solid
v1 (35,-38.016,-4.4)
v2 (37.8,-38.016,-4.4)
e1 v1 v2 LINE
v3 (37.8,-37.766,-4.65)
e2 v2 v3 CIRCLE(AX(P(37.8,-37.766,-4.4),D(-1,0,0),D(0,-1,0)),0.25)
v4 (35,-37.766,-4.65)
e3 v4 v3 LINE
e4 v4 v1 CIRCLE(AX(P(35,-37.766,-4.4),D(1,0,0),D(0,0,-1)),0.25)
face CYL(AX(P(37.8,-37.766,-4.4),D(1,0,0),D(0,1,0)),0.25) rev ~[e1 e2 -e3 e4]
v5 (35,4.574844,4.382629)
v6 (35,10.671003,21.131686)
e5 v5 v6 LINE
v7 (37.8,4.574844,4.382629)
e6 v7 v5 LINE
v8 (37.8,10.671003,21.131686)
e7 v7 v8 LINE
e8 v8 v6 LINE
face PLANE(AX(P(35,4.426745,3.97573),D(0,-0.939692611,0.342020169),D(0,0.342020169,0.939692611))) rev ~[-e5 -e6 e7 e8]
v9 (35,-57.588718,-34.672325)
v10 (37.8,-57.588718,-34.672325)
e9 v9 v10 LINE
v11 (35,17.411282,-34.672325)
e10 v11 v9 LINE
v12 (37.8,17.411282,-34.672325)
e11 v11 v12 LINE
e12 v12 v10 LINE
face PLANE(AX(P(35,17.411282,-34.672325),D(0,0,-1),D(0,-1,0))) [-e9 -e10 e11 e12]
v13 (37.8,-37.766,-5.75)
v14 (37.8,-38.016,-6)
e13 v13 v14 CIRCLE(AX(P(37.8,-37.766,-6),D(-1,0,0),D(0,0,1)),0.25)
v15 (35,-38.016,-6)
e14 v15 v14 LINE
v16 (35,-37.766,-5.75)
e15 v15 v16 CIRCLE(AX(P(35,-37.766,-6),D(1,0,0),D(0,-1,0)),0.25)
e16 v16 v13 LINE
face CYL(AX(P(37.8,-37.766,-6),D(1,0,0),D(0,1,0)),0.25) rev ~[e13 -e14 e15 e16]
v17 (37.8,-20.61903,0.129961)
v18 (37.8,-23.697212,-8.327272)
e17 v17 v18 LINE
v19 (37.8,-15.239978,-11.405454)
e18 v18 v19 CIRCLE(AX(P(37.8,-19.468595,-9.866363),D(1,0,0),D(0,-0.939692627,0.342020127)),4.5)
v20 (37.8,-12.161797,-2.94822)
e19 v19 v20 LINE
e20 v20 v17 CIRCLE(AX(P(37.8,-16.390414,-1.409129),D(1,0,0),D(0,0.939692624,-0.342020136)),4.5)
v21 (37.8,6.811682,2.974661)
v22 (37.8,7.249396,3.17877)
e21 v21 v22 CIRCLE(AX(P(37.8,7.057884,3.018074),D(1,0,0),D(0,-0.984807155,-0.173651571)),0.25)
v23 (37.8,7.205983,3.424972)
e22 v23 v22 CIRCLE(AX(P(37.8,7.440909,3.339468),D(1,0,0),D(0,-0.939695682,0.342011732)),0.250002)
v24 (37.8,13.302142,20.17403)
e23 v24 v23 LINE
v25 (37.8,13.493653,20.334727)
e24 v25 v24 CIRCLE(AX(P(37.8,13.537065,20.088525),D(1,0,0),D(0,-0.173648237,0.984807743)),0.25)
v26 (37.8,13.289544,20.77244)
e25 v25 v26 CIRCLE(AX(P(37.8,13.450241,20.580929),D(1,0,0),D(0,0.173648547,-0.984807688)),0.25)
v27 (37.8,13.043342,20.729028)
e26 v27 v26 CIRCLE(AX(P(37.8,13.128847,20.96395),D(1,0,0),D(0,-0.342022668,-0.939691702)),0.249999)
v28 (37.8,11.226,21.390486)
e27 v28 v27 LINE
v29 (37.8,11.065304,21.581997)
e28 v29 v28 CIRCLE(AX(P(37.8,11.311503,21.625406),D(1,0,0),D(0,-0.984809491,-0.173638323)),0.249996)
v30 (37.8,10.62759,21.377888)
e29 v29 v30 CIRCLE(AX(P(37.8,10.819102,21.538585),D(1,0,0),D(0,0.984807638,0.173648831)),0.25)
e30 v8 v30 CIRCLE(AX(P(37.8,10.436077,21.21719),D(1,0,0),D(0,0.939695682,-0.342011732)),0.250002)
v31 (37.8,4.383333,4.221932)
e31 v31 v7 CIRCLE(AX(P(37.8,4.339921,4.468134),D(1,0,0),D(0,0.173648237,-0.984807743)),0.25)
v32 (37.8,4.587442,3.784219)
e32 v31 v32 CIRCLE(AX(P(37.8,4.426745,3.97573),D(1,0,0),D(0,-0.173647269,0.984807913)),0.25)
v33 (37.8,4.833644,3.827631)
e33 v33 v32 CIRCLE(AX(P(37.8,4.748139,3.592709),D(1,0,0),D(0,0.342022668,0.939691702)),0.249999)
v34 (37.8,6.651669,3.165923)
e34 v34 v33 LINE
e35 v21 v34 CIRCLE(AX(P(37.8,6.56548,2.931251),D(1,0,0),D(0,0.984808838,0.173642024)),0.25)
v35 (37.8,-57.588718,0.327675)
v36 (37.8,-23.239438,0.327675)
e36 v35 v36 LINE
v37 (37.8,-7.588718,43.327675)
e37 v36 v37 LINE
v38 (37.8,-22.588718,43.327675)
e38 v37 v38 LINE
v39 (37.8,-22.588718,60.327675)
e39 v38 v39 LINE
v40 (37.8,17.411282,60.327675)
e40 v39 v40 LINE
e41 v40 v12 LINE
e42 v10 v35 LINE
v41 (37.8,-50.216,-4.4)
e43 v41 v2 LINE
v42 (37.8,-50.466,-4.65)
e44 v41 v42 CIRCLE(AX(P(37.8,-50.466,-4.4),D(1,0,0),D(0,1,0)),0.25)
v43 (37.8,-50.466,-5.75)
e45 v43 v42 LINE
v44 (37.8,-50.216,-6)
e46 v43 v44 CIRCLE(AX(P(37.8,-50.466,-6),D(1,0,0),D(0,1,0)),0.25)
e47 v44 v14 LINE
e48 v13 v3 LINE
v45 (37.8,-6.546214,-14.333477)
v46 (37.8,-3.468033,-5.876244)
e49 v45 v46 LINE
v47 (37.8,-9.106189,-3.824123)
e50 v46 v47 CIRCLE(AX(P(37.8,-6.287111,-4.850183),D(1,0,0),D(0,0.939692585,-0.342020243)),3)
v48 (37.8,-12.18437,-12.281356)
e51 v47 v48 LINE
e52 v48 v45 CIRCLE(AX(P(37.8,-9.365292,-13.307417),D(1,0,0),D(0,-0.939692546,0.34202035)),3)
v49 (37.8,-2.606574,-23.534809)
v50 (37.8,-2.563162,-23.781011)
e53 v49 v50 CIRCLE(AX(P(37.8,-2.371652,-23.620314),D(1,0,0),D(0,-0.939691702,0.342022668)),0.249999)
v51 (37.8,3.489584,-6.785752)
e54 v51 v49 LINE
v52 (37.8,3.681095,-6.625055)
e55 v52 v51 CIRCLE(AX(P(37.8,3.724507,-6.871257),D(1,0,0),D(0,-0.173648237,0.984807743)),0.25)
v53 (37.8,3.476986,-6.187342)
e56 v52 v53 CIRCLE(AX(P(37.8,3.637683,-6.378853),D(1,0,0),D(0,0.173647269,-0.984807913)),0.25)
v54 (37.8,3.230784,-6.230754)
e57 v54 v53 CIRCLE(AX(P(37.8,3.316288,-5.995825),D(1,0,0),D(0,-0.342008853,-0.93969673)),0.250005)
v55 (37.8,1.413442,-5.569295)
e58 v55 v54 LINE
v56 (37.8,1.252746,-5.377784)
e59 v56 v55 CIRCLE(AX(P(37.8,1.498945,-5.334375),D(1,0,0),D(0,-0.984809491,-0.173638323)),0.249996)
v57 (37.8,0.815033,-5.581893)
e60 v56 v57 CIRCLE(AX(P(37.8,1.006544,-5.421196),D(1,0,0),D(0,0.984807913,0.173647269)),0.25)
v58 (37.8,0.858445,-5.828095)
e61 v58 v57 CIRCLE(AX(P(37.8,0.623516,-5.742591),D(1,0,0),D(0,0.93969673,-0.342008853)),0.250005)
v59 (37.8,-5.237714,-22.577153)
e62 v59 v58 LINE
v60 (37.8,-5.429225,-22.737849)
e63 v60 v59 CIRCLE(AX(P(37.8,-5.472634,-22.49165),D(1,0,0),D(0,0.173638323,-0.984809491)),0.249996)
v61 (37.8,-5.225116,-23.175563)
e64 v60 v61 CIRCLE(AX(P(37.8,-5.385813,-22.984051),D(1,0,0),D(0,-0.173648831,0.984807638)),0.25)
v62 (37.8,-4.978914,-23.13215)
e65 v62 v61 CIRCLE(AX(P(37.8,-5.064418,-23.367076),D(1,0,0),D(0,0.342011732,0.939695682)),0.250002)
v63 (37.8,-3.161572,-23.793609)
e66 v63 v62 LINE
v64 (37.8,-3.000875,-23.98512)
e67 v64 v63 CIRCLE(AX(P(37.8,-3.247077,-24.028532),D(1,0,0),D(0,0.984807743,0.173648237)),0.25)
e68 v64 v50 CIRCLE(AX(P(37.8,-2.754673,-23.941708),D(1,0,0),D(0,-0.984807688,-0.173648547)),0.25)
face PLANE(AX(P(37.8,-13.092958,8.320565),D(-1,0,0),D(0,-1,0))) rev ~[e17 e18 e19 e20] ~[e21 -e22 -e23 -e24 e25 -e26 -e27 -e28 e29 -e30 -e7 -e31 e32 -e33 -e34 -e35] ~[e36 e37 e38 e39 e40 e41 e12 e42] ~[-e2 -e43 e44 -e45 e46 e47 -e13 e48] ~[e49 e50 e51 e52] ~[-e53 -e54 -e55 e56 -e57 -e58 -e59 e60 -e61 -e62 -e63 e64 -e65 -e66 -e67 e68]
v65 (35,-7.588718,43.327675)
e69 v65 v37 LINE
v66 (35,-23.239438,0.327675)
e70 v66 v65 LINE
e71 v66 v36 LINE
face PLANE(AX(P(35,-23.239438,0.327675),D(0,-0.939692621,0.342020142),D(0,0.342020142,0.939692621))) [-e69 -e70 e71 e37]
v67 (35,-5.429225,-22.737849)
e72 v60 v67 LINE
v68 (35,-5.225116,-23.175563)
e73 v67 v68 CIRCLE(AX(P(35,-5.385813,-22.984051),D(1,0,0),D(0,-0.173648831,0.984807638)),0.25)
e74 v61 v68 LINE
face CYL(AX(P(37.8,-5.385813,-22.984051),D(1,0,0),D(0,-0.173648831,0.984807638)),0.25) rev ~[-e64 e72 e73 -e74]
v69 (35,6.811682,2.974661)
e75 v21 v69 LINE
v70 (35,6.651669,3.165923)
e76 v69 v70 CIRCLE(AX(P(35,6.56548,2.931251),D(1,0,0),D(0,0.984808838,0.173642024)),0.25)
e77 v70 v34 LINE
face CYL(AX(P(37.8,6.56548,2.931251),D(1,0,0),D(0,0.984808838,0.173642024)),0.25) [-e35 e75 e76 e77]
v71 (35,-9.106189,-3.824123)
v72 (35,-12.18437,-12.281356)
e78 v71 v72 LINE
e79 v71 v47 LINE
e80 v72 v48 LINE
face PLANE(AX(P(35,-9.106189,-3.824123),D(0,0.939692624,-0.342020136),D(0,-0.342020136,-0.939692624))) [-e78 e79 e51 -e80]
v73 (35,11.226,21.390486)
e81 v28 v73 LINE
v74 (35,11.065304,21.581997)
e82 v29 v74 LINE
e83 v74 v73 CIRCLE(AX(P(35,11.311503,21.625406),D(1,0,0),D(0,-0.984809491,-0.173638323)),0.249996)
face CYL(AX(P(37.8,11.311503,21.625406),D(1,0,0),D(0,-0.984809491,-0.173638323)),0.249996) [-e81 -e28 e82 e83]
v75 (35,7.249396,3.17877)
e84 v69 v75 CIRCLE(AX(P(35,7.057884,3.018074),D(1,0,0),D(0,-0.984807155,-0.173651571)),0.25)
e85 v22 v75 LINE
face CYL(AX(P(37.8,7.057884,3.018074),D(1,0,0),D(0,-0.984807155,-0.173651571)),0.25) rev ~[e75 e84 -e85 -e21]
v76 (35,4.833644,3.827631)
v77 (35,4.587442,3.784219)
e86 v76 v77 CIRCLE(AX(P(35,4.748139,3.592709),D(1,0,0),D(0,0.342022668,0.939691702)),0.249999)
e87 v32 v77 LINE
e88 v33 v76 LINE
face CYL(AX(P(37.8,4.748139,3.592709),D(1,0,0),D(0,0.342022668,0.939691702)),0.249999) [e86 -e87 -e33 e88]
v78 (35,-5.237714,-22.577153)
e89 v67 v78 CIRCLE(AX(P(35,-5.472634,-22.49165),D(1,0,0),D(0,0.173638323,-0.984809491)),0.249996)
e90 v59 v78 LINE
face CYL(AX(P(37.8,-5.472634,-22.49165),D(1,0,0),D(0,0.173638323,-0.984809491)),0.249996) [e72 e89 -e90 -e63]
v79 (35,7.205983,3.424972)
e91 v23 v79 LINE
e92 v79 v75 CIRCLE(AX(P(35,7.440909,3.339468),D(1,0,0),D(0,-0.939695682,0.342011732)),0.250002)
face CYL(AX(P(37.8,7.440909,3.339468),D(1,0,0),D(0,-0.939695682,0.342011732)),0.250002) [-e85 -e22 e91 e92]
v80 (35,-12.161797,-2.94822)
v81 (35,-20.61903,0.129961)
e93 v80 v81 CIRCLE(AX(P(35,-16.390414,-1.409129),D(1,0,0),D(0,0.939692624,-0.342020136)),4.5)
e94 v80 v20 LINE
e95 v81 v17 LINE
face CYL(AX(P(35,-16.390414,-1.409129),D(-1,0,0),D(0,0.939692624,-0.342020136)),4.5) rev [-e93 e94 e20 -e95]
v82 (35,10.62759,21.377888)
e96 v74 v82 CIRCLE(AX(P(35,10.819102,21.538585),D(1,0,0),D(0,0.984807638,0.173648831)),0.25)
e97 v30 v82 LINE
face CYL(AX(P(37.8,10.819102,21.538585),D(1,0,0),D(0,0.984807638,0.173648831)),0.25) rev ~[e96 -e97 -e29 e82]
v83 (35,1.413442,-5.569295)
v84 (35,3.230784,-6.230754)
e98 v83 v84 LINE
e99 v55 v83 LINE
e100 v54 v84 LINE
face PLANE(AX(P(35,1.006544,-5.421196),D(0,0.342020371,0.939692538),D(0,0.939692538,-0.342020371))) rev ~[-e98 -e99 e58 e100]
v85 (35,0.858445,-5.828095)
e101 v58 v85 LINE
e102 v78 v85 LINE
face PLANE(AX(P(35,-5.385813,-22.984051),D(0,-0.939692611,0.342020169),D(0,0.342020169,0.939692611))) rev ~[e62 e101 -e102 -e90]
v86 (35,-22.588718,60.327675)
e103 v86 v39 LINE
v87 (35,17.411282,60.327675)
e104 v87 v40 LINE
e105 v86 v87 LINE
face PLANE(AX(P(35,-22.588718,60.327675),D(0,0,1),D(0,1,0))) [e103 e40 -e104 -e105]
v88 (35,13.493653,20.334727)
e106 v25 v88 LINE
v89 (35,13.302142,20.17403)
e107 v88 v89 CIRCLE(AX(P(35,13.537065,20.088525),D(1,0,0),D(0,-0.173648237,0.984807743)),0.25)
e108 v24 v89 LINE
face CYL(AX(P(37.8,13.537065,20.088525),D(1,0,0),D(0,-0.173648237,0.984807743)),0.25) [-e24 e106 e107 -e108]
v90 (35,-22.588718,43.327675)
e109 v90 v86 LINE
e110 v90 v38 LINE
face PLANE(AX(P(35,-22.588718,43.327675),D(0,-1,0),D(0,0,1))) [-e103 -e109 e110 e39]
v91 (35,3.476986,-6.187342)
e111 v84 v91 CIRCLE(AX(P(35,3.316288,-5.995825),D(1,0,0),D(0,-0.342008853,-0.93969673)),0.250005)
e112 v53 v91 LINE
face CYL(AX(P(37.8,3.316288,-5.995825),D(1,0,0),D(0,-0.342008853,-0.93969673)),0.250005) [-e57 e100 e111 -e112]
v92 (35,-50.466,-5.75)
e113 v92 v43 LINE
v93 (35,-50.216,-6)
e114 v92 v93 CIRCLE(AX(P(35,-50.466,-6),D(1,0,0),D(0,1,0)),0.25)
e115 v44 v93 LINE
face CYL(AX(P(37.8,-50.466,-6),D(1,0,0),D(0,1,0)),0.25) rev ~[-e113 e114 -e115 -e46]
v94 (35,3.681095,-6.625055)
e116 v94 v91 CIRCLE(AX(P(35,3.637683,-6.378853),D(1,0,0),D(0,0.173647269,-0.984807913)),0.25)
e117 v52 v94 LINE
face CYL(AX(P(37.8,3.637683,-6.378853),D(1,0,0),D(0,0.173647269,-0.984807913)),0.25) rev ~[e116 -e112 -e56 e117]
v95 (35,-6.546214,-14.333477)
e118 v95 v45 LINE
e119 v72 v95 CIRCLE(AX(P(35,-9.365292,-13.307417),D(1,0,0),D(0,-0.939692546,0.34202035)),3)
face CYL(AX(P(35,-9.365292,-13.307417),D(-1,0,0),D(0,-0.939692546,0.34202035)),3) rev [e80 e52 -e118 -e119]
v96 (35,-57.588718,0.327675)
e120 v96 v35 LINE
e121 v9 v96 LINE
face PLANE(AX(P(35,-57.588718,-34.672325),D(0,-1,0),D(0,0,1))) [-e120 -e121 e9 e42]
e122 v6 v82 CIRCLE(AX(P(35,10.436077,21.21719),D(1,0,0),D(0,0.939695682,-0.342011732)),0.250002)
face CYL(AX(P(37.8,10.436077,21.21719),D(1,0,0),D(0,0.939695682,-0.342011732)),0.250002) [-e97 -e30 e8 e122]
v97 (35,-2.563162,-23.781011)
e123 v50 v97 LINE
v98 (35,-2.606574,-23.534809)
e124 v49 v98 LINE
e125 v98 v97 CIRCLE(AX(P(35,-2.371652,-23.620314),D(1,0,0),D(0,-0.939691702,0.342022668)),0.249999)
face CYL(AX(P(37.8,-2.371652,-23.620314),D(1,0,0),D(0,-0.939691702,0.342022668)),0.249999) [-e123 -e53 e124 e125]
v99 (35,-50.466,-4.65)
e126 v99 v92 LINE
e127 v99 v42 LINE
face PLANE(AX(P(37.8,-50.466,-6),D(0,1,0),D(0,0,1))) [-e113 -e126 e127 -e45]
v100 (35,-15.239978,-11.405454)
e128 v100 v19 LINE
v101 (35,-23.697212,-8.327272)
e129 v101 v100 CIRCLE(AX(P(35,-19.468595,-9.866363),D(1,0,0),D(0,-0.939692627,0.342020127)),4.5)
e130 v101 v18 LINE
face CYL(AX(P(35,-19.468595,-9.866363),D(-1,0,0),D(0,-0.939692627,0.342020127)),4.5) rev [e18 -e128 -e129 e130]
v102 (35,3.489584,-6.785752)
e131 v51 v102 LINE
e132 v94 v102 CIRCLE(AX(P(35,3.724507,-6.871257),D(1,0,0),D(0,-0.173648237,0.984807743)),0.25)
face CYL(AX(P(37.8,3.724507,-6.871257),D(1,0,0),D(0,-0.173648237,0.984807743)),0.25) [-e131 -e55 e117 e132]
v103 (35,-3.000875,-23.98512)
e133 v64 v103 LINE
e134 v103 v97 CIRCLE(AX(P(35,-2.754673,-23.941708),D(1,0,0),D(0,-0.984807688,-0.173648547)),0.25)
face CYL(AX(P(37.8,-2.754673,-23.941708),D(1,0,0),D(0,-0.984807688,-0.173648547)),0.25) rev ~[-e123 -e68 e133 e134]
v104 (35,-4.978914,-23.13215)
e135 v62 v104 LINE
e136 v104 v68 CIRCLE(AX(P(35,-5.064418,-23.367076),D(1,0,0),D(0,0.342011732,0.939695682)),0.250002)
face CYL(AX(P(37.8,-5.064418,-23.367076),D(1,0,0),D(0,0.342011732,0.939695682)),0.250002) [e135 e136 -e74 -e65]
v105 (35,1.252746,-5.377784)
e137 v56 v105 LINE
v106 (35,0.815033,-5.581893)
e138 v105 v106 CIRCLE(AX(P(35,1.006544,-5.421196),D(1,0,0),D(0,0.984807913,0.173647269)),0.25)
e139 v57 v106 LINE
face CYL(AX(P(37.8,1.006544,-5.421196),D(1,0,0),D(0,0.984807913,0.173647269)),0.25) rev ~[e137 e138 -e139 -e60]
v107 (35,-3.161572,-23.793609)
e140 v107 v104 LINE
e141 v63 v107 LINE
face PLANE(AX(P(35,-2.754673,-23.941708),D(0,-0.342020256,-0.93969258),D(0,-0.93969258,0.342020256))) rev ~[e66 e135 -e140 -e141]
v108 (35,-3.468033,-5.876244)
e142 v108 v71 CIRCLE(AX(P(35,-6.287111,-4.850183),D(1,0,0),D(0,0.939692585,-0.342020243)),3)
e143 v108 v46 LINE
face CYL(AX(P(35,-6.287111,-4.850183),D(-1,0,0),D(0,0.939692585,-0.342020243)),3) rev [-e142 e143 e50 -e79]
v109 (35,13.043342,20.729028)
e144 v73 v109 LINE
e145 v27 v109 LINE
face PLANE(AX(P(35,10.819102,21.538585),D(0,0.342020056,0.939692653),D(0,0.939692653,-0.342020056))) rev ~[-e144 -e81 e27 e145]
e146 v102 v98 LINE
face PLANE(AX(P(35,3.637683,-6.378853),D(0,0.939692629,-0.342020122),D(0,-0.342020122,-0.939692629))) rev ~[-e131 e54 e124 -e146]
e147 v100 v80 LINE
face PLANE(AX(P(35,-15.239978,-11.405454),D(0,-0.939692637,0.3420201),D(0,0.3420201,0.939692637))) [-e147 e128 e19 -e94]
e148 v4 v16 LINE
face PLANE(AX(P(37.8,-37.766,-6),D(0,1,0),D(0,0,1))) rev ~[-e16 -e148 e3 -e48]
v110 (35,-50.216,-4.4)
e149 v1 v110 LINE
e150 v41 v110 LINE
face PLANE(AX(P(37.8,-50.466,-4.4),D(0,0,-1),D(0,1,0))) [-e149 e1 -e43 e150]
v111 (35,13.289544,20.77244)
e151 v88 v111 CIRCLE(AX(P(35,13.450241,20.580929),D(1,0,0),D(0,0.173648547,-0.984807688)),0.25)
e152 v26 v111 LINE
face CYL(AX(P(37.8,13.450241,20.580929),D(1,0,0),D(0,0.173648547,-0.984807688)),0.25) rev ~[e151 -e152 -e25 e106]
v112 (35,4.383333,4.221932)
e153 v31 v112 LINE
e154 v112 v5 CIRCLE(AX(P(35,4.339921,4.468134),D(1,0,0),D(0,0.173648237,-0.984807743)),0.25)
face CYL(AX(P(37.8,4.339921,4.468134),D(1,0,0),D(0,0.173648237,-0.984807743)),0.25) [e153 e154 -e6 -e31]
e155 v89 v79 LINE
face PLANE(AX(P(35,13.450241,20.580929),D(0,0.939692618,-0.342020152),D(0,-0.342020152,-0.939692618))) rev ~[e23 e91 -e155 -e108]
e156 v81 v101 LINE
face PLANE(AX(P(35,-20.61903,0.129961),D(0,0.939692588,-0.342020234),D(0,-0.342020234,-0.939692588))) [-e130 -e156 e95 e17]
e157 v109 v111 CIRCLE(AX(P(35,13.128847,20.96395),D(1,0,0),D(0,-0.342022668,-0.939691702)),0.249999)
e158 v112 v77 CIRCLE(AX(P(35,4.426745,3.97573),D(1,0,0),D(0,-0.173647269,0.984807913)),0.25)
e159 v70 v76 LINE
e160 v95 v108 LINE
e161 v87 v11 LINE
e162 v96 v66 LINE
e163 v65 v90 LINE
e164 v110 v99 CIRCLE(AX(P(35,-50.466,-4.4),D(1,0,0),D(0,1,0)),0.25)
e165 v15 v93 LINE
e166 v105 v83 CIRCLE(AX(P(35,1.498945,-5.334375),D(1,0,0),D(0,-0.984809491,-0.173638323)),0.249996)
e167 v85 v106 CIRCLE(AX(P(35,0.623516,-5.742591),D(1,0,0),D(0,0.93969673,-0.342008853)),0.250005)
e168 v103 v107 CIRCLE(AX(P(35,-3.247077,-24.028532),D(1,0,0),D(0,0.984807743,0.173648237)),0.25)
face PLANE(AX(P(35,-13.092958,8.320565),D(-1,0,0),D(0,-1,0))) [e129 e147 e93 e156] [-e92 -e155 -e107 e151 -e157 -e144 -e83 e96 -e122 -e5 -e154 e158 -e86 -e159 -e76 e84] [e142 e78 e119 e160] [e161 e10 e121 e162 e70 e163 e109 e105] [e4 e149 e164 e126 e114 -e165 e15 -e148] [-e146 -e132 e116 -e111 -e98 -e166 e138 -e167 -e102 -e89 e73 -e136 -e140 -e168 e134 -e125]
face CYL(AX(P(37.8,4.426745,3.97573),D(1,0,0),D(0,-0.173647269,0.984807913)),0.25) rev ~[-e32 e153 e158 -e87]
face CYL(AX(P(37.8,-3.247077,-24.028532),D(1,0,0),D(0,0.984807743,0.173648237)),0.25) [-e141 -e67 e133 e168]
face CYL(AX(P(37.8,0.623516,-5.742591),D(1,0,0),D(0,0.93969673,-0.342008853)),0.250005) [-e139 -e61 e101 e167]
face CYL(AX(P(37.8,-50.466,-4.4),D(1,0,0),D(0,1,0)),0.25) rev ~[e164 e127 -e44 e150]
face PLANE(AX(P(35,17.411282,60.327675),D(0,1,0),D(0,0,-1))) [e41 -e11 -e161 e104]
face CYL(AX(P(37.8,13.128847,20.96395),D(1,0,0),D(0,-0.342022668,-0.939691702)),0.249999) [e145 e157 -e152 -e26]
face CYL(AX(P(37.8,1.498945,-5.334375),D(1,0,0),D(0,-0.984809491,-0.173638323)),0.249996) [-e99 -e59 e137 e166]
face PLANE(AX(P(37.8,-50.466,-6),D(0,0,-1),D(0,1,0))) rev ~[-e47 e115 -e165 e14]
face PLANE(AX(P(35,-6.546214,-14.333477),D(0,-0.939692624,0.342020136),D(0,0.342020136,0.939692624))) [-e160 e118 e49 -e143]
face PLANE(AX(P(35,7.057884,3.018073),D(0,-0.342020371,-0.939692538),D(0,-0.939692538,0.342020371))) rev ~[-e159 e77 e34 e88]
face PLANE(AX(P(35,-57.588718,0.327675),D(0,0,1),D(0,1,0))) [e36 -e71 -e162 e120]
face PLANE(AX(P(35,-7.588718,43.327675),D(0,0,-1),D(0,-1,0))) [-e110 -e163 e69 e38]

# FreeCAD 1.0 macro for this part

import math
import FreeCAD as App
import Part
import Sketcher
Q = App.Units.Quantity

doc = App.newDocument("Part")
body = doc.addObject("PartDesign::Body", "Body")

sketch1 = body.newObject("Sketcher::SketchObject", "Sketch")
sketch1.AttachmentSupport = (doc.getObject("YZ_Plane"), [""])
sketch1.MapMode = "FlatFace"
sketch1.AttachmentOffset = App.Placement(App.Vector(0, 0, 35), App.Rotation())
sketch1.addGeometry(Part.LineSegment(App.Vector(17.4, 60.3, 0), App.Vector(-22.6, 60.3, 0)), False)
sketch1.addGeometry(Part.LineSegment(App.Vector(-22.6, 60.3, 0), App.Vector(-22.6, 43.3, 0)), False)
sketch1.addGeometry(Part.LineSegment(App.Vector(-22.6, 43.3, 0), App.Vector(-7.6, 43.3, 0)), False)
sketch1.addGeometry(Part.LineSegment(App.Vector(-7.6, 43.3, 0), App.Vector(-23.2, 0.3, 0)), False)
sketch1.addGeometry(Part.LineSegment(App.Vector(-23.2, 0.3, 0), App.Vector(-57.6, 0.3, 0)), False)
sketch1.addGeometry(Part.LineSegment(App.Vector(-57.6, 0.3, 0), App.Vector(-57.6, -34.7, 0)), False)
sketch1.addGeometry(Part.LineSegment(App.Vector(-57.6, -34.7, 0), App.Vector(17.4, -34.7, 0)), False)
sketch1.addGeometry(Part.LineSegment(App.Vector(17.4, -34.7, 0), App.Vector(17.4, 60.3, 0)), False)
sketch1.addGeometry(Part.LineSegment(App.Vector(1, -5.4, 0), App.Vector(3.6, -6.4, 0)), False)
sketch1.addGeometry(Part.LineSegment(App.Vector(3.6, -6.4, 0), App.Vector(-2.8, -23.9, 0)), False)
sketch1.addGeometry(Part.LineSegment(App.Vector(-2.8, -23.9, 0), App.Vector(-5.4, -23, 0)), False)
sketch1.addGeometry(Part.LineSegment(App.Vector(-5.4, -23, 0), App.Vector(1, -5.4, 0)), False)
sketch1.addGeometry(Part.LineSegment(App.Vector(-3.5, -5.9, 0), App.Vector(-6.5, -14.3, 0)), False)
sketch1.addGeometry(Part.ArcOfCircle(Part.Circle(App.Vector(-9.4, -13.3, 0), App.Vector(0, 0, 1), 3), math.radians(160), math.radians(340)), False)
sketch1.addGeometry(Part.LineSegment(App.Vector(-12.2, -12.3, 0), App.Vector(-9.1, -3.8, 0)), False)
sketch1.addGeometry(Part.ArcOfCircle(Part.Circle(App.Vector(-6.3, -4.9, 0), App.Vector(0, 0, 1), 3), math.radians(-20), math.radians(160)), False)
sketch1.addGeometry(Part.LineSegment(App.Vector(-12.2, -2.9, 0), App.Vector(-15.2, -11.4, 0)), False)
sketch1.addGeometry(Part.ArcOfCircle(Part.Circle(App.Vector(-19.5, -9.9, 0), App.Vector(0, 0, 1), 4.5), math.radians(160), math.radians(340)), False)
sketch1.addGeometry(Part.LineSegment(App.Vector(-23.7, -8.3, 0), App.Vector(-20.6, 0.1, 0)), False)
sketch1.addGeometry(Part.ArcOfCircle(Part.Circle(App.Vector(-16.4, -1.4, 0), App.Vector(0, 0, 1), 4.5), math.radians(-20), math.radians(160)), False)
sketch1.addGeometry(Part.LineSegment(App.Vector(10.8, 21.5, 0), App.Vector(13.5, 20.6, 0)), False)
sketch1.addGeometry(Part.LineSegment(App.Vector(13.5, 20.6, 0), App.Vector(7.1, 3, 0)), False)
sketch1.addGeometry(Part.LineSegment(App.Vector(7.1, 3, 0), App.Vector(4.4, 4, 0)), False)
sketch1.addGeometry(Part.LineSegment(App.Vector(4.4, 4, 0), App.Vector(10.8, 21.5, 0)), False)
sketch1.addConstraint(Sketcher.Constraint("Coincident", 0, 2, 1, 1))
sketch1.addConstraint(Sketcher.Constraint("Coincident", 1, 2, 2, 1))
sketch1.addConstraint(Sketcher.Constraint("Coincident", 2, 2, 3, 1))
sketch1.addConstraint(Sketcher.Constraint("Coincident", 3, 2, 4, 1))
sketch1.addConstraint(Sketcher.Constraint("Coincident", 4, 2, 5, 1))
sketch1.addConstraint(Sketcher.Constraint("Coincident", 5, 2, 6, 1))
sketch1.addConstraint(Sketcher.Constraint("Coincident", 6, 2, 7, 1))
sketch1.addConstraint(Sketcher.Constraint("Coincident", 7, 2, 0, 1))
sketch1.addConstraint(Sketcher.Constraint("Coincident", 8, 2, 9, 1))
sketch1.addConstraint(Sketcher.Constraint("Coincident", 9, 2, 10, 1))
sketch1.addConstraint(Sketcher.Constraint("Coincident", 10, 2, 11, 1))
sketch1.addConstraint(Sketcher.Constraint("Coincident", 11, 2, 8, 1))
sketch1.addConstraint(Sketcher.Constraint("Tangent", 12, 2, 13, 2))
sketch1.addConstraint(Sketcher.Constraint("Tangent", 13, 1, 14, 1))
sketch1.addConstraint(Sketcher.Constraint("Tangent", 14, 2, 15, 2))
sketch1.addConstraint(Sketcher.Constraint("Tangent", 15, 1, 12, 1))
sketch1.addConstraint(Sketcher.Constraint("Tangent", 16, 2, 17, 2))
sketch1.addConstraint(Sketcher.Constraint("Tangent", 17, 1, 18, 1))
sketch1.addConstraint(Sketcher.Constraint("Tangent", 18, 2, 19, 2))
sketch1.addConstraint(Sketcher.Constraint("Tangent", 19, 1, 16, 1))
sketch1.addConstraint(Sketcher.Constraint("Coincident", 20, 2, 21, 1))
sketch1.addConstraint(Sketcher.Constraint("Coincident", 21, 2, 22, 1))
sketch1.addConstraint(Sketcher.Constraint("Coincident", 22, 2, 23, 1))
sketch1.addConstraint(Sketcher.Constraint("Coincident", 23, 2, 20, 1))
sketch1.addConstraint(Sketcher.Constraint("Horizontal", 0))
sketch1.addConstraint(Sketcher.Constraint("Vertical", 1))
sketch1.addConstraint(Sketcher.Constraint("Horizontal", 2))
sketch1.addConstraint(Sketcher.Constraint("Horizontal", 4))
sketch1.addConstraint(Sketcher.Constraint("Vertical", 5))
sketch1.addConstraint(Sketcher.Constraint("Horizontal", 6))
sketch1.addConstraint(Sketcher.Constraint("Vertical", 7))
sketch1.addConstraint(Sketcher.Constraint("Equal", 13, 15))
sketch1.addConstraint(Sketcher.Constraint("Equal", 17, 19))
sketch1.addConstraint(Sketcher.Constraint("Perpendicular", 3, 8))
sketch1.addConstraint(Sketcher.Constraint("Perpendicular", 8, 9))
sketch1.addConstraint(Sketcher.Constraint("Perpendicular", 9, 10))
sketch1.addConstraint(Sketcher.Constraint("Perpendicular", 10, 11))
sketch1.addConstraint(Sketcher.Constraint("Parallel", 11, 12))
sketch1.addConstraint(Sketcher.Constraint("Parallel", 14, 16))
sketch1.addConstraint(Sketcher.Constraint("Perpendicular", 18, 20))
sketch1.addConstraint(Sketcher.Constraint("Perpendicular", 20, 21))
sketch1.addConstraint(Sketcher.Constraint("Perpendicular", 21, 22))
sketch1.addConstraint(Sketcher.Constraint("Perpendicular", 22, 23))
sketch1.addConstraint(Sketcher.Constraint("Equal", 14, 16))
sketch1.addConstraint(Sketcher.Constraint("Equal", 10, 20))
sketch1.addConstraint(Sketcher.Constraint("Equal", 11, 21))
sketch1.addConstraint(Sketcher.Constraint("Radius", 13, 3.0))
sketch1.addConstraint(Sketcher.Constraint("Radius", 17, 4.5))
sketch1.addConstraint(Sketcher.Constraint("DistanceX", 0, 2, 0, 1, 40.0))
sketch1.addConstraint(Sketcher.Constraint("DistanceX", 2, 1, 2, 2, 15.0))
sketch1.addConstraint(Sketcher.Constraint("DistanceX", 6, 1, 6, 2, 75.0))
sketch1.addConstraint(Sketcher.Constraint("DistanceY", 1, 2, 1, 1, 17.0))
sketch1.addConstraint(Sketcher.Constraint("DistanceY", 5, 2, 5, 1, 35.0))
sketch1.addConstraint(Sketcher.Constraint("DistanceY", 7, 1, 7, 2, 95.0))
sketch1.addConstraint(Sketcher.Constraint("Angle", 3, Q("-110 deg")))
sketch1.addConstraint(Sketcher.Constraint("Distance", 12, 8.999999))
sketch1.addConstraint(Sketcher.Constraint("Distance", 8, 2.8))
sketch1.addConstraint(Sketcher.Constraint("Distance", 9, 18.69))
sketch1.addConstraint(Sketcher.Constraint("DistanceX", 12, 2, 10, 2, 1.160401))
sketch1.addConstraint(Sketcher.Constraint("DistanceX", 8, 2, 21, 2, 3.420201))
sketch1.addConstraint(Sketcher.Constraint("DistanceX", 15, 3, -1, 1, 6.287111))
sketch1.addConstraint(Sketcher.Constraint("DistanceY", 19, 3, -1, 1, 1.409129))
sketch1.addConstraint(Sketcher.Constraint("DistanceX", 0, 2, -1, 1, 22.588718))
sketch1.addConstraint(Sketcher.Constraint("DistanceY", 10, 2, -1, 1, 22.984051))
sketch1.addConstraint(Sketcher.Constraint("DistanceX", 16, 2, -1, 1, 15.239978))
sketch1.addConstraint(Sketcher.Constraint("DistanceY", -1, 1, 20, 2, 20.580929))
sketch1.addConstraint(Sketcher.Constraint("DistanceY", 17, 3, 15, 3, 5.016179))
sketch1.addConstraint(Sketcher.Constraint("DistanceY", 15, 3, 0, 2, 65.177858))
pad1 = body.newObject("PartDesign::Pad", "Pad")
pad1.Profile = sketch1
pad1.Length = 2.8

sketch2 = body.newObject("Sketcher::SketchObject", "Sketch001")
sketch2.AttachmentSupport = (doc.getObject("YZ_Plane"), [""])
sketch2.MapMode = "FlatFace"
sketch2.AttachmentOffset = App.Placement(App.Vector(0, 0, 37.8), App.Rotation())
sketch2.addGeometry(Part.ArcOfCircle(Part.Circle(App.Vector(1.01, -5.42, 0), App.Vector(0, 0, 1), 0.25), math.radians(10), math.radians(220)), False)
sketch2.addGeometry(Part.ArcOfCircle(Part.Circle(App.Vector(0.62, -5.74, 0), App.Vector(0, 0, 1), 0.25), math.radians(-20), math.radians(40)), False)
sketch2.addGeometry(Part.LineSegment(App.Vector(0.86, -5.83, 0), App.Vector(1.41, -5.57, 0)), False)
sketch2.addGeometry(Part.ArcOfCircle(Part.Circle(App.Vector(1.5, -5.33, 0), App.Vector(0, 0, 1), 0.25), math.radians(-170), math.radians(-110)), False)
sketch2.addGeometry(Part.ArcOfCircle(Part.Circle(App.Vector(3.64, -6.38, 0), App.Vector(0, 0, 1), 0.25), math.radians(-80), math.radians(130)), False)
sketch2.addGeometry(Part.ArcOfCircle(Part.Circle(App.Vector(3.32, -6, 0), App.Vector(0, 0, 1), 0.25), math.radians(-110), math.radians(-50)), False)
sketch2.addGeometry(Part.LineSegment(App.Vector(3.23, -6.23, 0), App.Vector(3.49, -6.79, 0)), False)
sketch2.addGeometry(Part.ArcOfCircle(Part.Circle(App.Vector(3.72, -6.87, 0), App.Vector(0, 0, 1), 0.25), math.radians(100), math.radians(160)), False)
sketch2.addGeometry(Part.ArcOfCircle(Part.Circle(App.Vector(-5.39, -22.98, 0), App.Vector(0, 0, 1), 0.25), math.radians(100), math.radians(310)), False)
sketch2.addGeometry(Part.ArcOfCircle(Part.Circle(App.Vector(-5.06, -23.37, 0), App.Vector(0, 0, 1), 0.25), math.radians(70), math.radians(130)), False)
sketch2.addGeometry(Part.LineSegment(App.Vector(-4.98, -23.13, 0), App.Vector(-5.24, -22.58, 0)), False)
sketch2.addGeometry(Part.ArcOfCircle(Part.Circle(App.Vector(-5.47, -22.49, 0), App.Vector(0, 0, 1), 0.25), math.radians(-80), math.radians(-20)), False)
sketch2.addGeometry(Part.ArcOfCircle(Part.Circle(App.Vector(-2.75, -23.94, 0), App.Vector(0, 0, 1), 0.25), math.radians(-170), math.radians(40)), False)
sketch2.addGeometry(Part.ArcOfCircle(Part.Circle(App.Vector(-2.37, -23.62, 0), App.Vector(0, 0, 1), 0.25), math.radians(160), math.radians(220)), False)
sketch2.addGeometry(Part.LineSegment(App.Vector(-2.61, -23.53, 0), App.Vector(-3.16, -23.79, 0)), False)
sketch2.addGeometry(Part.ArcOfCircle(Part.Circle(App.Vector(-3.25, -24.03, 0), App.Vector(0, 0, 1), 0.25), math.radians(10), math.radians(70)), False)
sketch2.addGeometry(Part.ArcOfCircle(Part.Circle(App.Vector(10.82, 21.54, 0), App.Vector(0, 0, 1), 0.25), math.radians(10), math.radians(220)), False)
sketch2.addGeometry(Part.ArcOfCircle(Part.Circle(App.Vector(10.44, 21.22, 0), App.Vector(0, 0, 1), 0.25), math.radians(-20), math.radians(40)), False)
sketch2.addGeometry(Part.LineSegment(App.Vector(10.67, 21.13, 0), App.Vector(11.23, 21.39, 0)), False)
sketch2.addGeometry(Part.ArcOfCircle(Part.Circle(App.Vector(11.31, 21.63, 0), App.Vector(0, 0, 1), 0.25), math.radians(-170), math.radians(-110)), False)
sketch2.addGeometry(Part.ArcOfCircle(Part.Circle(App.Vector(13.45, 20.58, 0), App.Vector(0, 0, 1), 0.25), math.radians(-80), math.radians(130)), False)
sketch2.addGeometry(Part.ArcOfCircle(Part.Circle(App.Vector(13.13, 20.96, 0), App.Vector(0, 0, 1), 0.25), math.radians(-110), math.radians(-50)), False)
sketch2.addGeometry(Part.LineSegment(App.Vector(13.04, 20.73, 0), App.Vector(13.3, 20.17, 0)), False)
sketch2.addGeometry(Part.ArcOfCircle(Part.Circle(App.Vector(13.54, 20.09, 0), App.Vector(0, 0, 1), 0.25), math.radians(100), math.radians(160)), False)
sketch2.addGeometry(Part.ArcOfCircle(Part.Circle(App.Vector(4.43, 3.98, 0), App.Vector(0, 0, 1), 0.25), math.radians(100), math.radians(310)), False)
sketch2.addGeometry(Part.ArcOfCircle(Part.Circle(App.Vector(4.75, 3.59, 0), App.Vector(0, 0, 1), 0.25), math.radians(70), math.radians(130)), False)
sketch2.addGeometry(Part.LineSegment(App.Vector(4.83, 3.83, 0), App.Vector(4.57, 4.38, 0)), False)
sketch2.addGeometry(Part.ArcOfCircle(Part.Circle(App.Vector(4.34, 4.47, 0), App.Vector(0, 0, 1), 0.25), math.radians(-80), math.radians(-20)), False)
sketch2.addGeometry(Part.ArcOfCircle(Part.Circle(App.Vector(7.06, 3.02, 0), App.Vector(0, 0, 1), 0.25), math.radians(-170), math.radians(40)), False)
sketch2.addGeometry(Part.ArcOfCircle(Part.Circle(App.Vector(7.44, 3.34, 0), App.Vector(0, 0, 1), 0.25), math.radians(160), math.radians(220)), False)
sketch2.addGeometry(Part.LineSegment(App.Vector(7.21, 3.42, 0), App.Vector(6.65, 3.17, 0)), False)
sketch2.addGeometry(Part.ArcOfCircle(Part.Circle(App.Vector(6.57, 2.93, 0), App.Vector(0, 0, 1), 0.25), math.radians(10), math.radians(70)), False)
sketch2.addConstraint(Sketcher.Constraint("Coincident", 0, 2, 1, 2))
sketch2.addConstraint(Sketcher.Constraint("Coincident", 1, 1, 2, 1))
sketch2.addConstraint(Sketcher.Constraint("Coincident", 2, 2, 3, 2))
sketch2.addConstraint(Sketcher.Constraint("Coincident", 3, 1, 0, 1))
sketch2.addConstraint(Sketcher.Constraint("Coincident", 4, 2, 5, 2))
sketch2.addConstraint(Sketcher.Constraint("Coincident", 5, 1, 6, 1))
sketch2.addConstraint(Sketcher.Constraint("Coincident", 6, 2, 7, 2))
sketch2.addConstraint(Sketcher.Constraint("Tangent", 7, 1, 4, 1))
sketch2.addConstraint(Sketcher.Constraint("Tangent", 8, 2, 9, 2))
sketch2.addConstraint(Sketcher.Constraint("Coincident", 9, 1, 10, 1))
sketch2.addConstraint(Sketcher.Constraint("Coincident", 10, 2, 11, 2))
sketch2.addConstraint(Sketcher.Constraint("Coincident", 11, 1, 8, 1))
sketch2.addConstraint(Sketcher.Constraint("Coincident", 12, 2, 13, 2))
sketch2.addConstraint(Sketcher.Constraint("Coincident", 13, 1, 14, 1))
sketch2.addConstraint(Sketcher.Constraint("Coincident", 14, 2, 15, 2))
sketch2.addConstraint(Sketcher.Constraint("Tangent", 15, 1, 12, 1))
sketch2.addConstraint(Sketcher.Constraint("Tangent", 16, 2, 17, 2))
sketch2.addConstraint(Sketcher.Constraint("Coincident", 17, 1, 18, 1))
sketch2.addConstraint(Sketcher.Constraint("Coincident", 18, 2, 19, 2))
sketch2.addConstraint(Sketcher.Constraint("Coincident", 19, 1, 16, 1))
sketch2.addConstraint(Sketcher.Constraint("Coincident", 20, 2, 21, 2))
sketch2.addConstraint(Sketcher.Constraint("Coincident", 21, 1, 22, 1))
sketch2.addConstraint(Sketcher.Constraint("Coincident", 22, 2, 23, 2))
sketch2.addConstraint(Sketcher.Constraint("Tangent", 23, 1, 20, 1))
sketch2.addConstraint(Sketcher.Constraint("Tangent", 24, 2, 25, 2))
sketch2.addConstraint(Sketcher.Constraint("Coincident", 25, 1, 26, 1))
sketch2.addConstraint(Sketcher.Constraint("Coincident", 26, 2, 27, 2))
sketch2.addConstraint(Sketcher.Constraint("Tangent", 27, 1, 24, 1))
sketch2.addConstraint(Sketcher.Constraint("Coincident", 28, 2, 29, 2))
sketch2.addConstraint(Sketcher.Constraint("Coincident", 29, 1, 30, 1))
sketch2.addConstraint(Sketcher.Constraint("Coincident", 30, 2, 31, 2))
sketch2.addConstraint(Sketcher.Constraint("Coincident", 31, 1, 28, 1))
sketch2.addConstraint(Sketcher.Constraint("Equal", 0, 4))
sketch2.addConstraint(Sketcher.Constraint("Equal", 1, 5))
sketch2.addConstraint(Sketcher.Constraint("Equal", 4, 7))
sketch2.addConstraint(Sketcher.Constraint("Equal", 7, 8))
sketch2.addConstraint(Sketcher.Constraint("Equal", 3, 11))
sketch2.addConstraint(Sketcher.Constraint("Equal", 8, 12))
sketch2.addConstraint(Sketcher.Constraint("Equal", 12, 13))
sketch2.addConstraint(Sketcher.Constraint("Equal", 13, 15))
sketch2.addConstraint(Sketcher.Constraint("Equal", 15, 16))
sketch2.addConstraint(Sketcher.Constraint("Equal", 9, 17))
sketch2.addConstraint(Sketcher.Constraint("Equal", 11, 19))
sketch2.addConstraint(Sketcher.Constraint("Equal", 16, 20))
sketch2.addConstraint(Sketcher.Constraint("Equal", 20, 21))
sketch2.addConstraint(Sketcher.Constraint("Equal", 21, 23))
sketch2.addConstraint(Sketcher.Constraint("Equal", 23, 24))
sketch2.addConstraint(Sketcher.Constraint("Equal", 24, 25))
sketch2.addConstraint(Sketcher.Constraint("Equal", 25, 27))
sketch2.addConstraint(Sketcher.Constraint("Equal", 27, 28))
sketch2.addConstraint(Sketcher.Constraint("Equal", 17, 29))
sketch2.addConstraint(Sketcher.Constraint("Equal", 28, 31))
sketch2.addConstraint(Sketcher.Constraint("Perpendicular", 2, 6))
sketch2.addConstraint(Sketcher.Constraint("Parallel", 6, 10))
sketch2.addConstraint(Sketcher.Constraint("Perpendicular", 10, 14))
sketch2.addConstraint(Sketcher.Constraint("Parallel", 14, 18))
sketch2.addConstraint(Sketcher.Constraint("Perpendicular", 18, 22))
sketch2.addConstraint(Sketcher.Constraint("Parallel", 22, 26))
sketch2.addConstraint(Sketcher.Constraint("Perpendicular", 26, 30))
sketch2.addConstraint(Sketcher.Constraint("Equal", 2, 6))
sketch2.addConstraint(Sketcher.Constraint("Equal", 6, 10))
sketch2.addConstraint(Sketcher.Constraint("Equal", 10, 14))
sketch2.addConstraint(Sketcher.Constraint("Equal", 14, 18))
sketch2.addConstraint(Sketcher.Constraint("Equal", 18, 22))
sketch2.addConstraint(Sketcher.Constraint("Equal", 22, 26))
sketch2.addConstraint(Sketcher.Constraint("Equal", 26, 30))
sketch2.addConstraint(Sketcher.Constraint("Angle", 6, Q("-64.999985 deg")))
sketch2.addConstraint(Sketcher.Constraint("Radius", 0, 0.25))
sketch2.addConstraint(Sketcher.Constraint("DistanceX", -1, 1, 18, 2, 11.226))
sketch2.addConstraint(Sketcher.Constraint("Radius", 1, 0.250005))
sketch2.addConstraint(Sketcher.Constraint("Radius", 3, 0.249996))
sketch2.addConstraint(Sketcher.Constraint("Radius", 9, 0.250002))
sketch2.addConstraint(Sketcher.Constraint("DistanceY", 6, 2, 5, 1, 0.554998))
sketch2.addConstraint(Sketcher.Constraint("DistanceX", -1, 1, 16, 3, 10.819102))
sketch2.addConstraint(Sketcher.Constraint("DistanceX", 0, 3, 3, 3, 0.492401))
sketch2.addConstraint(Sketcher.Constraint("DistanceY", 8, 3, 4, 3, 16.605198))
sketch2.addConstraint(Sketcher.Constraint("DistanceX", 9, 3, 4, 3, 8.702101))
sketch2.addConstraint(Sketcher.Constraint("DistanceY", 8, 3, 11, 3, 0.492401))
sketch2.addConstraint(Sketcher.Constraint("DistanceX", 16, 3, 19, 3, 0.492401))
sketch2.addConstraint(Sketcher.Constraint("DistanceY", 0, 3, 19, 3, 27.046602))
sketch2.addConstraint(Sketcher.Constraint("DistanceX", 3, 3, 24, 3, 2.9278))
sketch2.addConstraint(Sketcher.Constraint("DistanceY", 5, 3, 28, 3, 9.013899))
sketch2.addConstraint(Sketcher.Constraint("DistanceX", 4, 3, 28, 3, 3.420201))
sketch2.addConstraint(Sketcher.Constraint("DistanceX", 1, 1, 0, 3, 0.148099))
sketch2.addConstraint(Sketcher.Constraint("DistanceX", 3, 1, 3, 3, 0.246199))
sketch2.addConstraint(Sketcher.Constraint("DistanceX", 5, 1, 4, 3, 0.406899))
sketch2.addConstraint(Sketcher.Constraint("DistanceY", 4, 3, 5, 1, 0.148099))
sketch2.addConstraint(Sketcher.Constraint("DistanceX", 8, 2, 9, 3, 0.160698))
sketch2.addConstraint(Sketcher.Constraint("DistanceY", 11, 1, 11, 3, 0.246199))
sketch2.addConstraint(Sketcher.Constraint("DistanceX", 12, 3, 13, 1, 0.148099))
sketch2.addConstraint(Sketcher.Constraint("DistanceY", 12, 3, 13, 1, 0.406899))
sketch2.addConstraint(Sketcher.Constraint("DistanceX", 19, 1, 19, 3, 0.246199))
sketch2.addConstraint(Sketcher.Constraint("DistanceX", 21, 1, 20, 3, 0.406899))
sketch2.addConstraint(Sketcher.Constraint("DistanceY", 20, 3, 21, 1, 0.148099))
sketch2.addConstraint(Sketcher.Constraint("DistanceX", 24, 2, 25, 1, 0.246202))
sketch2.addConstraint(Sketcher.Constraint("DistanceX", 24, 3, 25, 1, 0.406899))
sketch2.addConstraint(Sketcher.Constraint("DistanceY", 28, 2, 29, 3, 0.160698))
sketch2.addConstraint(Sketcher.Constraint("DistanceY", 28, 2, 29, 1, 0.246202))
sketch2.addConstraint(Sketcher.Constraint("DistanceX", 28, 3, 29, 1, 0.148099))
sketch2.addConstraint(Sketcher.Constraint("DistanceX", 31, 3, 31, 1, 0.246202))
sketch2.addConstraint(Sketcher.Constraint("DistanceY", 1, 3, -1, 1, 5.742591))
sketch2.addConstraint(Sketcher.Constraint("DistanceX", -1, 1, 5, 3, 3.316288))
sketch2.addConstraint(Sketcher.Constraint("DistanceY", 8, 3, -1, 1, 22.984051))
sketch2.addConstraint(Sketcher.Constraint("DistanceX", -1, 1, 20, 3, 13.450241))
sketch2.addConstraint(Sketcher.Constraint("DistanceY", -1, 1, 20, 3, 20.580929))
sketch2.addConstraint(Sketcher.Constraint("DistanceY", -1, 1, 24, 3, 3.97573))
sketch2.addConstraint(Sketcher.Constraint("DistanceX", -1, 1, 25, 3, 4.748139))
sketch2.addConstraint(Sketcher.Constraint("DistanceY", 12, 2, -1, 1, 23.781011))
sketch2.addConstraint(Sketcher.Constraint("DistanceY", 13, 1, -1, 1, 23.534809))
sketch2.addConstraint(Sketcher.Constraint("DistanceX", 14, 2, -1, 1, 3.161572))
sketch2.addConstraint(Sketcher.Constraint("DistanceY", -1, 1, 20, 2, 20.77244))
sketch2.addConstraint(Sketcher.Constraint("DistanceX", 0, 2, 0, 3, 0.191511))
sketch2.addConstraint(Sketcher.Constraint("DistanceY", 4, 3, 4, 2, 0.191511))
pocket1 = body.newObject("PartDesign::Pocket", "Pocket")
pocket1.Profile = sketch2
pocket1.Type = "ThroughAll"

sketch3 = body.newObject("Sketcher::SketchObject", "Sketch002")
sketch3.AttachmentSupport = (doc.getObject("YZ_Plane"), [""])
sketch3.MapMode = "FlatFace"
sketch3.AttachmentOffset = App.Placement(App.Vector(0, 0, 37.8), App.Rotation())
sketch3.addGeometry(Part.LineSegment(App.Vector(-50.5, -4.4, 0), App.Vector(-50.5, -6, 0)), False)
sketch3.addGeometry(Part.LineSegment(App.Vector(-50.5, -6, 0), App.Vector(-37.8, -6, 0)), False)
sketch3.addGeometry(Part.LineSegment(App.Vector(-37.8, -6, 0), App.Vector(-37.8, -4.4, 0)), False)
sketch3.addGeometry(Part.LineSegment(App.Vector(-37.8, -4.4, 0), App.Vector(-50.5, -4.4, 0)), False)
sketch3.addConstraint(Sketcher.Constraint("Coincident", 0, 2, 1, 1))
sketch3.addConstraint(Sketcher.Constraint("Coincident", 1, 2, 2, 1))
sketch3.addConstraint(Sketcher.Constraint("Coincident", 2, 2, 3, 1))
sketch3.addConstraint(Sketcher.Constraint("Coincident", 3, 2, 0, 1))
sketch3.addConstraint(Sketcher.Constraint("Vertical", 0))
sketch3.addConstraint(Sketcher.Constraint("Horizontal", 1))
sketch3.addConstraint(Sketcher.Constraint("Vertical", 2))
sketch3.addConstraint(Sketcher.Constraint("Horizontal", 3))
sketch3.addConstraint(Sketcher.Constraint("DistanceX", 1, 1, 1, 2, 12.7))
sketch3.addConstraint(Sketcher.Constraint("DistanceY", 0, 2, 0, 1, 1.6))
sketch3.addConstraint(Sketcher.Constraint("DistanceY", 0, 2, -1, 1, 6.0))
sketch3.addConstraint(Sketcher.Constraint("DistanceX", 0, 2, -1, 1, 50.466))
pocket2 = body.newObject("PartDesign::Pocket", "Pocket001")
pocket2.Profile = sketch3
pocket2.Type = "ThroughAll"

sketch4 = body.newObject("Sketcher::SketchObject", "Sketch003")
sketch4.AttachmentSupport = (doc.getObject("YZ_Plane"), [""])
sketch4.MapMode = "FlatFace"
sketch4.AttachmentOffset = App.Placement(App.Vector(0, 0, 37.8), App.Rotation())
sketch4.addGeometry(Part.Circle(App.Vector(-50.47, -4.4, 0), App.Vector(0, 0, 1), 0.25), False)
sketch4.addGeometry(Part.Circle(App.Vector(-37.77, -4.4, 0), App.Vector(0, 0, 1), 0.25), False)
sketch4.addGeometry(Part.Circle(App.Vector(-37.77, -6, 0), App.Vector(0, 0, 1), 0.25), False)
sketch4.addGeometry(Part.Circle(App.Vector(-50.47, -6, 0), App.Vector(0, 0, 1), 0.25), False)
sketch4.addConstraint(Sketcher.Constraint("Equal", 0, 1))
sketch4.addConstraint(Sketcher.Constraint("Equal", 1, 2))
sketch4.addConstraint(Sketcher.Constraint("Equal", 2, 3))
sketch4.addConstraint(Sketcher.Constraint("Horizontal", 0, 3, 1, 3))
sketch4.addConstraint(Sketcher.Constraint("Horizontal", 2, 3, 3, 3))
sketch4.addConstraint(Sketcher.Constraint("Vertical", 1, 3, 2, 3))
sketch4.addConstraint(Sketcher.Constraint("Vertical", 0, 3, 3, 3))
sketch4.addConstraint(Sketcher.Constraint("Diameter", 0, 0.5))
sketch4.addConstraint(Sketcher.Constraint("DistanceY", 2, 3, -1, 1, 6.0))
sketch4.addConstraint(Sketcher.Constraint("DistanceY", 0, 3, -1, 1, 4.4))
sketch4.addConstraint(Sketcher.Constraint("DistanceX", 0, 3, 1, 3, 12.7))
sketch4.addConstraint(Sketcher.Constraint("DistanceX", 0, 3, -1, 1, 50.466))
pocket3 = body.newObject("PartDesign::Pocket", "Pocket002")
pocket3.Profile = sketch4
pocket3.Type = "ThroughAll"

doc.recompute()
